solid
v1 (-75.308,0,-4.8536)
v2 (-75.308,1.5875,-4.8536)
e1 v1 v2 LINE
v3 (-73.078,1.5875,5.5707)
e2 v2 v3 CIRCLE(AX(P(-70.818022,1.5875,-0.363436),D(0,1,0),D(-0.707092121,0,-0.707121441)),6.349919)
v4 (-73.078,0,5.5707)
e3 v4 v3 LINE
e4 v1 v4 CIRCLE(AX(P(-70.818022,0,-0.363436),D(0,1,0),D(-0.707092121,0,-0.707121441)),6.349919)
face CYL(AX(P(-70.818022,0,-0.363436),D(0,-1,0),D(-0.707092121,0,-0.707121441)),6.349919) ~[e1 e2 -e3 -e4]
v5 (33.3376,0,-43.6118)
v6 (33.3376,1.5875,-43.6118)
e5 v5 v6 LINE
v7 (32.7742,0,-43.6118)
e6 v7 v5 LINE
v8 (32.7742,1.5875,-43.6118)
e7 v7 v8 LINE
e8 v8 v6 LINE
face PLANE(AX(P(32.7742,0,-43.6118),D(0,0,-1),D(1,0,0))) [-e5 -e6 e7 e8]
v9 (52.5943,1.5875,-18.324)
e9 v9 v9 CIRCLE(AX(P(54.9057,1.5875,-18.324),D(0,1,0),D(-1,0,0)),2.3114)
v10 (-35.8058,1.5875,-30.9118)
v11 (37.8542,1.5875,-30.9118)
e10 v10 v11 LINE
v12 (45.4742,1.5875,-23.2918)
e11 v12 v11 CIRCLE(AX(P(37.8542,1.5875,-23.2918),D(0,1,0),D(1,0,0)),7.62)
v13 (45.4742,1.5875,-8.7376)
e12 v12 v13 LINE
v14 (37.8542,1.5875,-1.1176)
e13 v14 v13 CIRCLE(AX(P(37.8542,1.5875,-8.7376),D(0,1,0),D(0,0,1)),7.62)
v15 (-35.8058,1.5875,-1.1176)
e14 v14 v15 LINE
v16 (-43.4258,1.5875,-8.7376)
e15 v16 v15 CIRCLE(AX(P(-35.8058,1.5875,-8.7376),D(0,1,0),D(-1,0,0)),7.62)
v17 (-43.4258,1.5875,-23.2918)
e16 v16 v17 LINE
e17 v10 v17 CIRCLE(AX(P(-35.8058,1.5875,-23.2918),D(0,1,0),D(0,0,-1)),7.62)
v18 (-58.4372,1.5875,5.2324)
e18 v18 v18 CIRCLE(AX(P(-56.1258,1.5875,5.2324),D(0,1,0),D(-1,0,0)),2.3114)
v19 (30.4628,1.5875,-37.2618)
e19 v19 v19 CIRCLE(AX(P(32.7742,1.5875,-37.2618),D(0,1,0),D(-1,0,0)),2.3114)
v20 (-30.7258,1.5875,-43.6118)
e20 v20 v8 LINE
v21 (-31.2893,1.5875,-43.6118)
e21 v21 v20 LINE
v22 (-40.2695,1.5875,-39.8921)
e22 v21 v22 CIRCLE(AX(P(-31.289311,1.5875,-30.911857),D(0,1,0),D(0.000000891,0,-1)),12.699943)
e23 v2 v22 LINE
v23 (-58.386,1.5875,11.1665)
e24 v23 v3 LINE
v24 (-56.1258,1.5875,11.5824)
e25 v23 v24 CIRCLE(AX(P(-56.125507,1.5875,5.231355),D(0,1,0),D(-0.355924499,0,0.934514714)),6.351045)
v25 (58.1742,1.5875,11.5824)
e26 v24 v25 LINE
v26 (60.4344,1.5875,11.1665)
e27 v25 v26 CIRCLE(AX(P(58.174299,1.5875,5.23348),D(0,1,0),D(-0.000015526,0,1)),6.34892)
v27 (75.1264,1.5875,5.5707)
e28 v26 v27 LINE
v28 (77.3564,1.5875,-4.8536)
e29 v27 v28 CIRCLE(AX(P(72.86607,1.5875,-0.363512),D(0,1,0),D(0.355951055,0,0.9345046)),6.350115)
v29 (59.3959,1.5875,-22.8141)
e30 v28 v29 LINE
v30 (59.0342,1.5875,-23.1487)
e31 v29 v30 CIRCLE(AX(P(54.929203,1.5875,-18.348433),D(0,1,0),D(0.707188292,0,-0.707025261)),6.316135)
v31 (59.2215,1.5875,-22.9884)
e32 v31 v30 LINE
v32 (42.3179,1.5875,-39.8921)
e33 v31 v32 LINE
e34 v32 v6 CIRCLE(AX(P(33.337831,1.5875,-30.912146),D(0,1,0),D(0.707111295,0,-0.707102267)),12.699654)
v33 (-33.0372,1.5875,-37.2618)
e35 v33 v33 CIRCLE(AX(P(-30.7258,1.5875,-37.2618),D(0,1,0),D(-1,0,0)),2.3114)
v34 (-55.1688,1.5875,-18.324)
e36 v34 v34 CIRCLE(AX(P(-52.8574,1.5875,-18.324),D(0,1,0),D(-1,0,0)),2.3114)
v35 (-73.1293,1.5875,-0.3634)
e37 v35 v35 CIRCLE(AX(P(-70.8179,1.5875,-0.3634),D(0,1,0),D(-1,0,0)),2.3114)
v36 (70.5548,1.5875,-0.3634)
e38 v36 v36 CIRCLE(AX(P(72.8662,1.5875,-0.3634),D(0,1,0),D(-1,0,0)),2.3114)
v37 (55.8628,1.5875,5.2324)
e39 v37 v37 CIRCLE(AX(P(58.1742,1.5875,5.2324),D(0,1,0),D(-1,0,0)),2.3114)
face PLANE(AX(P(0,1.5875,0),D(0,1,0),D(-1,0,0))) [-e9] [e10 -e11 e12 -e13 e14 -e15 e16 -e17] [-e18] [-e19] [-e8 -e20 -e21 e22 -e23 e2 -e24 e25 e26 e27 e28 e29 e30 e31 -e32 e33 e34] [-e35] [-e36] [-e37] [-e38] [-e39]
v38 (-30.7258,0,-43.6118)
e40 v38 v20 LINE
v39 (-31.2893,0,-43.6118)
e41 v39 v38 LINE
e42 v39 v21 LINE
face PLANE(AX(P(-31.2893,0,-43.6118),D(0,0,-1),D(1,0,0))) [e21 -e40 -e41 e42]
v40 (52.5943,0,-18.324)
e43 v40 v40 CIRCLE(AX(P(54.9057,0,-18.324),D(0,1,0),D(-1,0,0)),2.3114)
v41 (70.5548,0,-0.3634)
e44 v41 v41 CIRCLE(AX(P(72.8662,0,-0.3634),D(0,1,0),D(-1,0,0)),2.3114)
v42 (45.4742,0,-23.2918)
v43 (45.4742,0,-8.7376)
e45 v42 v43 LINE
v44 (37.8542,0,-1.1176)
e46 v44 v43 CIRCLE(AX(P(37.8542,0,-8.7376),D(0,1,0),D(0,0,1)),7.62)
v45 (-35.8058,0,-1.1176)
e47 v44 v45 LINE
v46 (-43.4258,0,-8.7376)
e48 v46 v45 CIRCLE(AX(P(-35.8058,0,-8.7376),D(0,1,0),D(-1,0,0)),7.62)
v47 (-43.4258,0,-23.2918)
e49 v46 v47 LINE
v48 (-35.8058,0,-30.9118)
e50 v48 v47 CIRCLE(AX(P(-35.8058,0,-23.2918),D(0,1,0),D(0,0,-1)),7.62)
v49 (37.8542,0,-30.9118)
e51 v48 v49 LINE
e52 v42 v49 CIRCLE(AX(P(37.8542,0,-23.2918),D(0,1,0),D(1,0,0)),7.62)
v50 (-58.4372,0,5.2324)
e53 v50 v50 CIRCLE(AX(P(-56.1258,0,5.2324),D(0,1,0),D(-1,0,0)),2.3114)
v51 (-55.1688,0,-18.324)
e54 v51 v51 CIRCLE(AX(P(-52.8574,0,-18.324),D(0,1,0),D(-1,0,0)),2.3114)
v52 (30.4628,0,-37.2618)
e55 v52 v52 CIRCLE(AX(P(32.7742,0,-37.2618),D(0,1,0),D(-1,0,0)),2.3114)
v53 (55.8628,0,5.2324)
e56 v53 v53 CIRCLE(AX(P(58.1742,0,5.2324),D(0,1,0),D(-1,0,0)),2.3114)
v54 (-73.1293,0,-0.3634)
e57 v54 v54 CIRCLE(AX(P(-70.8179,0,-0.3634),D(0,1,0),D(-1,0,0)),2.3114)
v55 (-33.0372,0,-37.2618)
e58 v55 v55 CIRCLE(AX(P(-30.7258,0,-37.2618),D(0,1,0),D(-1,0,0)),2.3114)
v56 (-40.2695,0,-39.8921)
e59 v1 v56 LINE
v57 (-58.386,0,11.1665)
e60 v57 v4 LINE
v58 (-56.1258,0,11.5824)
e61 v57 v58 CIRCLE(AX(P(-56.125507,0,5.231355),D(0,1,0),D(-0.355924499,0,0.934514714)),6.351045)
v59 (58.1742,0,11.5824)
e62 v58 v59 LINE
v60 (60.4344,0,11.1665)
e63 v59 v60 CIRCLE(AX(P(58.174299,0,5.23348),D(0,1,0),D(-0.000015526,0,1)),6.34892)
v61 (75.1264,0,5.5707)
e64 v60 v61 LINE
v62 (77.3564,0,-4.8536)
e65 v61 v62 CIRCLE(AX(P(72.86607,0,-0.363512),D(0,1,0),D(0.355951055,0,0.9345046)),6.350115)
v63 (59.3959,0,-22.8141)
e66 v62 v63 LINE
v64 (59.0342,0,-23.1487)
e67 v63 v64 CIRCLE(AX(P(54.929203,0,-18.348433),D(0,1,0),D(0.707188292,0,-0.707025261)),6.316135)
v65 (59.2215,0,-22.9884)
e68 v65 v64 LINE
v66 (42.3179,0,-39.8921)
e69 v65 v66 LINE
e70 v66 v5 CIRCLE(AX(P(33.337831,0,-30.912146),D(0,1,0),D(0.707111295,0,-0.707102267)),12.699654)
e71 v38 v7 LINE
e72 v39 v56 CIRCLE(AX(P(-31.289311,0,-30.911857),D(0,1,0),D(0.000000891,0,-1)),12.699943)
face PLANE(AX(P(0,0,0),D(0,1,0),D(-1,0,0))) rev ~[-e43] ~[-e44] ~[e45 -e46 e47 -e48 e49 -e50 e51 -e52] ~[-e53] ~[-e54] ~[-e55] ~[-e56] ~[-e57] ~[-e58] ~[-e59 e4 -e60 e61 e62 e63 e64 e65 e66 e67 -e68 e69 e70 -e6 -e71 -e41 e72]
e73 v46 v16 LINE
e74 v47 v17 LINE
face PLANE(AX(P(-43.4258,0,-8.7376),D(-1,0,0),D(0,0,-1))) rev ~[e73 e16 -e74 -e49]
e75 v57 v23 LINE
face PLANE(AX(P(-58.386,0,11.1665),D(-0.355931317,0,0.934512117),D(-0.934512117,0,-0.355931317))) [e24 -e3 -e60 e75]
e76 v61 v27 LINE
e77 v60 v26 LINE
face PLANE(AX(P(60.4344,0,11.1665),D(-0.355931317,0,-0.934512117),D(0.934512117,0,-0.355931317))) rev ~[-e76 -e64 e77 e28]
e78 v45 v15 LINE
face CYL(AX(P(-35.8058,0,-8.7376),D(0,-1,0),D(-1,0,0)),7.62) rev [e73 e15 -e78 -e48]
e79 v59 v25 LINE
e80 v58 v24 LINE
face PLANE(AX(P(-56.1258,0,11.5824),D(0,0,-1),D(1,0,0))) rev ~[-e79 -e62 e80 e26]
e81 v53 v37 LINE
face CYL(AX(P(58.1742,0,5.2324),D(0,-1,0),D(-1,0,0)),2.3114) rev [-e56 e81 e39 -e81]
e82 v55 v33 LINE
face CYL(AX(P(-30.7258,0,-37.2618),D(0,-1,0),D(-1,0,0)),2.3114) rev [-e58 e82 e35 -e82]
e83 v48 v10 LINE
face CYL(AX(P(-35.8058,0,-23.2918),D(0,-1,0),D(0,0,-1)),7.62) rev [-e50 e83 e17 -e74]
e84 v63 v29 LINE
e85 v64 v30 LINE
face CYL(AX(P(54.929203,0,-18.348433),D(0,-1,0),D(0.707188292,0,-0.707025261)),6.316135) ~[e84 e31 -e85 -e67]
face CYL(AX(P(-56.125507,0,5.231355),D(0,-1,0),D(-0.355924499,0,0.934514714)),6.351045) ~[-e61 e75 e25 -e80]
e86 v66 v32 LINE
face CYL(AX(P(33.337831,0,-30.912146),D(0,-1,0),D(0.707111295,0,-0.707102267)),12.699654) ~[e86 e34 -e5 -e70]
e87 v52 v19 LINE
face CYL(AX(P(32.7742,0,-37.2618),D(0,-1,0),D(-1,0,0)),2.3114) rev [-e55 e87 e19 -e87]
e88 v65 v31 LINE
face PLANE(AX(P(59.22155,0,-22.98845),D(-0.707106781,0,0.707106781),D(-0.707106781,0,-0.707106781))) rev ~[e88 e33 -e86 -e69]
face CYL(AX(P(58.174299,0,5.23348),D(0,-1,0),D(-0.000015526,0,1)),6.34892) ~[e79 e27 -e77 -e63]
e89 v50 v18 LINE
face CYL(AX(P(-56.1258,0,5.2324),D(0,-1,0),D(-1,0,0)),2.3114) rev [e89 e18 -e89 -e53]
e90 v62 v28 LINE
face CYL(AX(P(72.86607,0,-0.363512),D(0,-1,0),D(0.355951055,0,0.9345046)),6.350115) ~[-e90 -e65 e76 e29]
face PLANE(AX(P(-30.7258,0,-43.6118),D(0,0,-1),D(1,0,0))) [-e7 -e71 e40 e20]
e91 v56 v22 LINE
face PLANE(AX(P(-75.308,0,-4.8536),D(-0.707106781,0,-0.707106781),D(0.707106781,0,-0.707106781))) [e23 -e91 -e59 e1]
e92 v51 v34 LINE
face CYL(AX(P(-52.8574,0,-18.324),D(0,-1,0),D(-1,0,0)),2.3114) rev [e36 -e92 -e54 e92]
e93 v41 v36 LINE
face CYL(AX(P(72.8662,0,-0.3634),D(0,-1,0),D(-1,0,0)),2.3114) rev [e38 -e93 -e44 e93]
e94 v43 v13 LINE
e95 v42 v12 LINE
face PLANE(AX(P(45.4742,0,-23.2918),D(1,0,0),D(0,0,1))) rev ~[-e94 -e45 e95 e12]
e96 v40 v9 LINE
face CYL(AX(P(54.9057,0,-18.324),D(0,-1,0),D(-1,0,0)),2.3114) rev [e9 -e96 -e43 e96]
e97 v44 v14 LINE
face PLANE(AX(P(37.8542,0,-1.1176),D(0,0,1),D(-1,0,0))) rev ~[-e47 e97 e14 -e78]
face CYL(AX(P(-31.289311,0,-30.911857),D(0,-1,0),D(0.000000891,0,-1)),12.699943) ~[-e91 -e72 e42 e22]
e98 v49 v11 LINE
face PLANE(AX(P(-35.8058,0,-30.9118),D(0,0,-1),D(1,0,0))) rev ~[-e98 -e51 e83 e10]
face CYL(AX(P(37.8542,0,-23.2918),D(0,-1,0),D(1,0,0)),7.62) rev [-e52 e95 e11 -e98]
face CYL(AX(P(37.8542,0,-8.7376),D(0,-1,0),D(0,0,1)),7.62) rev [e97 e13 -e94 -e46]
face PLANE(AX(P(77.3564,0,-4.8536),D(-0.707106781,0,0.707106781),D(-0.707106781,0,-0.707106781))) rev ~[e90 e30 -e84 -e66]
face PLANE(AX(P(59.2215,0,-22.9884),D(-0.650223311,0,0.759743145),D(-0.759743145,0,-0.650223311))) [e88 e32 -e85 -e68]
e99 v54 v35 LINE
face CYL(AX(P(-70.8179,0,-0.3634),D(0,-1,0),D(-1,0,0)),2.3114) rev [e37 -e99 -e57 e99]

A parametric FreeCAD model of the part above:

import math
import FreeCAD as App
import Part
import Sketcher

V = App.Vector
Q = App.Units.Quantity

doc = App.newDocument("Part")
body = doc.addObject("PartDesign::Body", "Body")

# Sketch on XZ plane
sketch1 = body.newObject("Sketcher::SketchObject", "Sketch")
sketch1.AttachmentSupport = (doc.getObject("XZ_Plane"), [""])
sketch1.MapMode = "FlatFace"
sketch1.addGeometry([
    Part.LineSegment(V(-40.2695, -39.8921, 0), V(-75.308, -4.8536, 0)),  # 0
    Part.ArcOfCircle(Part.Circle(V(-70.8179, -0.3634, 0), V(0, 0, 1), 6.350031), math.radians(110.850162), math.radians(225.000638)),  # 1
    Part.LineSegment(V(-73.078, 5.5707, 0), V(-58.386, 11.1665, 0)),  # 2
    Part.ArcOfCircle(Part.Circle(V(-56.125507, 5.231355, 0), V(0, 0, 1), 6.351045), math.radians(90.002639), math.radians(110.850115)),  # 3
    Part.LineSegment(V(-56.1258, 11.5824, 0), V(58.1742, 11.5824, 0)),  # 4
    Part.ArcOfCircle(Part.Circle(V(58.174299, 5.23348, 0), V(0, 0, 1), 6.34892), math.radians(69.146356), math.radians(90.00089)),  # 5
    Part.LineSegment(V(60.4344, 11.1665, 0), V(75.1264, 5.5707, 0)),  # 6
    Part.ArcOfCircle(Part.Circle(V(72.8662, -0.3634, 0), V(0, 0, 1), 6.349964), math.radians(-45), math.radians(69.148995)),  # 7
    Part.LineSegment(V(77.3564, -4.8536, 0), V(59.3959, -22.8141, 0)),  # 8
    Part.ArcOfCircle(Part.Circle(V(54.929203, -18.348433, 0), V(0, 0, 1), 6.316135), math.radians(-49.464259), math.radians(-44.993395)),  # 9
    Part.LineSegment(V(59.0342, -23.1487, 0), V(59.2215, -22.9884, 0)),  # 10
    Part.LineSegment(V(59.22155, -22.98845, 0), V(42.3179, -39.8921, 0)),  # 11
    Part.ArcOfCircle(Part.Circle(V(33.3376, -30.9118, 0), V(0, 0, 1), 12.700062), math.radians(-90), math.radians(-45)),  # 12
    Part.LineSegment(V(33.3376, -43.6118, 0), V(-31.2893, -43.6118, 0)),  # 13
    Part.ArcOfCircle(Part.Circle(V(-31.2893, -30.9118, 0), V(0, 0, 1), 12.7), math.radians(-134.999681), math.radians(-90)),  # 14
    Part.Circle(V(32.7742, -37.2618, 0), V(0, 0, 1), 2.3114),  # 15
    Part.Circle(V(54.9057, -18.324, 0), V(0, 0, 1), 2.3114),  # 16
    Part.Circle(V(-30.7258, -37.2618, 0), V(0, 0, 1), 2.3114),  # 17
    Part.Circle(V(-52.8574, -18.324, 0), V(0, 0, 1), 2.3114),  # 18
    Part.ArcOfCircle(Part.Circle(V(37.8542, -8.7376, 0), V(0, 0, 1), 7.62), math.radians(0), math.radians(90)),  # 19
    Part.LineSegment(V(37.8542, -1.1176, 0), V(-35.8058, -1.1176, 0)),  # 20
    Part.ArcOfCircle(Part.Circle(V(-35.8058, -8.7376, 0), V(0, 0, 1), 7.62), math.radians(90), math.radians(180)),  # 21
    Part.LineSegment(V(-43.4258, -8.7376, 0), V(-43.4258, -23.2918, 0)),  # 22
    Part.ArcOfCircle(Part.Circle(V(-35.8058, -23.2918, 0), V(0, 0, 1), 7.62), math.radians(180), math.radians(270)),  # 23
    Part.LineSegment(V(-35.8058, -30.9118, 0), V(37.8542, -30.9118, 0)),  # 24
    Part.ArcOfCircle(Part.Circle(V(37.8542, -23.2918, 0), V(0, 0, 1), 7.62), math.radians(-90), math.radians(0)),  # 25
    Part.LineSegment(V(45.4742, -23.2918, 0), V(45.4742, -8.7376, 0)),  # 26
    Part.Circle(V(72.8662, -0.3634, 0), V(0, 0, 1), 2.3114),  # 27
    Part.Circle(V(58.1742, 5.2324, 0), V(0, 0, 1), 2.3114),  # 28
    Part.Circle(V(-70.8179, -0.3634, 0), V(0, 0, 1), 2.3114),  # 29
    Part.Circle(V(-56.1258, 5.2324, 0), V(0, 0, 1), 2.3114),  # 30
], False)
sketch1.addConstraint([
    Sketcher.Constraint("Coincident", 0, 2, 1, 2),
    Sketcher.Constraint("Coincident", 1, 1, 2, 1),
    Sketcher.Constraint("Coincident", 2, 2, 3, 2),
    Sketcher.Constraint("Coincident", 3, 1, 4, 1),
    Sketcher.Constraint("Coincident", 4, 2, 5, 2),
    Sketcher.Constraint("Coincident", 5, 1, 6, 1),
    Sketcher.Constraint("Coincident", 6, 2, 7, 2),
    Sketcher.Constraint("Coincident", 7, 1, 8, 1),
    Sketcher.Constraint("Coincident", 8, 2, 9, 2),
    Sketcher.Constraint("Coincident", 9, 1, 10, 1),
    Sketcher.Constraint("Coincident", 10, 2, 11, 1),
    Sketcher.Constraint("Coincident", 11, 2, 12, 2),
    Sketcher.Constraint("Coincident", 12, 1, 13, 1),
    Sketcher.Constraint("Coincident", 13, 2, 14, 2),
    Sketcher.Constraint("Coincident", 14, 1, 0, 1),
    Sketcher.Constraint("Coincident", 19, 2, 20, 1),
    Sketcher.Constraint("Coincident", 20, 2, 21, 1),
    Sketcher.Constraint("Coincident", 21, 2, 22, 1),
    Sketcher.Constraint("Coincident", 22, 2, 23, 1),
    Sketcher.Constraint("Coincident", 23, 2, 24, 1),
    Sketcher.Constraint("Coincident", 24, 2, 25, 1),
    Sketcher.Constraint("Coincident", 25, 2, 26, 1),
    Sketcher.Constraint("Coincident", 26, 2, 19, 1),
    Sketcher.Constraint("Horizontal", 4),
    Sketcher.Constraint("Horizontal", 13),
    Sketcher.Constraint("Horizontal", 20),
    Sketcher.Constraint("Vertical", 22),
    Sketcher.Constraint("Horizontal", 24),
    Sketcher.Constraint("Vertical", 26),
    Sketcher.Constraint("Coincident", 27, 3, 7, 3),
    Sketcher.Constraint("Coincident", 29, 3, 1, 3),
    Sketcher.Constraint("Radius", 12, Q("0.5 in")),
    Sketcher.Constraint("Radius", 14, Q("0.5 in")),
    Sketcher.Constraint("Radius", 19, Q("0.3 in")),
    Sketcher.Constraint("Radius", 21, Q("0.3 in")),
    Sketcher.Constraint("Radius", 23, Q("0.3 in")),
    Sketcher.Constraint("Radius", 25, Q("0.3 in")),
    Sketcher.Constraint("Radius", 1, Q("0.25 in")),
    Sketcher.Constraint("Radius", 7, Q("0.25 in")),
    Sketcher.Constraint("DistanceY", 14, 3, 23, 3, Q("0.3 in")),
    Sketcher.Constraint("DistanceY", 19, 2, 4, 2, Q("0.5 in")),
    Sketcher.Constraint("DistanceX", 21, 2, 20, 2, Q("0.3 in")),
    Sketcher.Constraint("DistanceY", 21, 2, 20, 2, Q("0.3 in")),
    Sketcher.Constraint("DistanceX", 3, 3, 21, 2, Q("0.5 in")),
    Sketcher.Constraint("DistanceY", 14, 3, 22, 2, Q("0.3 in")),
    Sketcher.Constraint("DistanceX", 22, 2, 23, 2, Q("0.3 in")),
    Sketcher.Constraint("DistanceX", 24, 2, 25, 2, Q("0.3 in")),
    Sketcher.Constraint("DistanceY", 24, 2, 25, 2, Q("0.3 in")),
    Sketcher.Constraint("DistanceX", 19, 2, 26, 2, Q("0.3 in")),
    Sketcher.Constraint("DistanceY", 26, 2, 19, 2, Q("0.3 in")),
    Sketcher.Constraint("Distance", 8, Q("1 in")),
    Sketcher.Constraint("Diameter", 15, Q("0.182 in")),
    Sketcher.Constraint("Diameter", 16, Q("0.182 in")),
    Sketcher.Constraint("Diameter", 17, Q("0.182 in")),
    Sketcher.Constraint("Diameter", 18, Q("0.182 in")),
    Sketcher.Constraint("Diameter", 27, Q("0.182 in")),
    Sketcher.Constraint("Diameter", 28, Q("0.182 in")),
    Sketcher.Constraint("Diameter", 29, Q("0.182 in")),
    Sketcher.Constraint("Diameter", 30, Q("0.182 in")),
    Sketcher.Constraint("DistanceX", 4, 1, 4, 2, Q("4.5 in")),
    Sketcher.Constraint("DistanceX", 20, 2, 20, 1, Q("2.9 in")),
    Sketcher.Constraint("DistanceX", 15, 3, 5, 3, Q("1 in")),
    Sketcher.Constraint("DistanceX", 3, 3, 17, 3, Q("1 in")),
    Sketcher.Constraint("DistanceX", 30, 3, 3, 3, Q("0 in")),
    Sketcher.Constraint("DistanceX", 3, 1, 3, 3, Q("0 in")),
    Sketcher.Constraint("DistanceX", 3, 3, 5, 3, Q("4.5 in")),
    Sketcher.Constraint("DistanceX", 19, 2, 28, 3, Q("0.8 in")),
    Sketcher.Constraint("DistanceY", 22, 2, 22, 1, Q("0.573 in")),
    Sketcher.Constraint("Radius", 3, Q("6.351 mm")),
    Sketcher.Constraint("Radius", 5, Q("6.349 mm")),
    Sketcher.Constraint("Radius", 9, Q("6.3161 mm")),
    Sketcher.Constraint("DistanceY", 15, 3, 12, 3, Q("0.25 in")),
    Sketcher.Constraint("DistanceY", 17, 3, 14, 3, Q("0.25 in")),
    Sketcher.Constraint("DistanceY", 21, 3, 30, 3, Q("0.55 in")),
    Sketcher.Constraint("DistanceY", 28, 3, 4, 2, Q("0.25 in")),
    Sketcher.Constraint("DistanceX", -1, 1, 12, 3, Q("1.3125 in")),
    Sketcher.Constraint("DistanceY", 12, 3, -1, 1, Q("1.217 in")),
    Sketcher.Constraint("DistanceX", 18, 3, -1, 1, Q("2.081 in")),
    Sketcher.Constraint("DistanceX", -1, 1, 12, 1, Q("1.3125 in")),
    Sketcher.Constraint("DistanceX", 2, 2, 3, 3, Q("0.089 in")),
    Sketcher.Constraint("DistanceX", 9, 3, 10, 2, Q("0.169 in")),
    Sketcher.Constraint("Distance", 10, Q("0.0097 in")),
    Sketcher.Constraint("DistanceX", 13, 2, 13, 1, Q("64.627 mm")),
    Sketcher.Constraint("DistanceX", 1, 3, -1, 1, Q("2.7881 in")),
    Sketcher.Constraint("DistanceY", 1, 3, -1, 1, Q("0.0143 in")),
    Sketcher.Constraint("DistanceY", 7, 3, -1, 1, Q("0.0143 in")),
    Sketcher.Constraint("DistanceX", 1, 1, -1, 1, Q("2.8771 in")),
    Sketcher.Constraint("DistanceX", -1, 1, 5, 1, Q("2.3793 in")),
    Sketcher.Constraint("DistanceY", 8, 2, -1, 1, Q("0.8982 in")),
    Sketcher.Constraint("DistanceX", 3, 3, 14, 3, Q("0.9778 in")),
    Sketcher.Constraint("DistanceX", 16, 3, 7, 3, Q("0.7071 in")),
    Sketcher.Constraint("DistanceY", 16, 3, 7, 3, Q("0.7071 in")),
    Sketcher.Constraint("DistanceY", 18, 3, 1, 3, Q("0.7071 in")),
    Sketcher.Constraint("DistanceX", 0, 2, 30, 3, Q("0.7552 in")),
    Sketcher.Constraint("DistanceX", 0, 2, 1, 1, Q("0.0878 in")),
    Sketcher.Constraint("DistanceY", 6, 2, 5, 1, Q("0.2203 in")),
    Sketcher.Constraint("DistanceX", 5, 3, 6, 2, Q("0.6674 in")),
    Sketcher.Constraint("DistanceX", 6, 2, 7, 1, Q("0.0878 in")),
    Sketcher.Constraint("DistanceY", 9, 1, 10, 2, Q("0.0063 in")),
    Sketcher.Constraint("DistanceY", 11, 2, 9, 1, Q("0.6592 in")),
    Sketcher.Constraint("Distance", 0, Q("49.552 mm")),
    Sketcher.Constraint("DistanceX", -1, 1, 9, 3, Q("54.9292 mm")),
])
pad1 = body.newObject("PartDesign::Pad", "Pad")
pad1.Profile = sketch1
pad1.Length = Q("0.0625 in")
pad1.Reversed = True

doc.recompute()
